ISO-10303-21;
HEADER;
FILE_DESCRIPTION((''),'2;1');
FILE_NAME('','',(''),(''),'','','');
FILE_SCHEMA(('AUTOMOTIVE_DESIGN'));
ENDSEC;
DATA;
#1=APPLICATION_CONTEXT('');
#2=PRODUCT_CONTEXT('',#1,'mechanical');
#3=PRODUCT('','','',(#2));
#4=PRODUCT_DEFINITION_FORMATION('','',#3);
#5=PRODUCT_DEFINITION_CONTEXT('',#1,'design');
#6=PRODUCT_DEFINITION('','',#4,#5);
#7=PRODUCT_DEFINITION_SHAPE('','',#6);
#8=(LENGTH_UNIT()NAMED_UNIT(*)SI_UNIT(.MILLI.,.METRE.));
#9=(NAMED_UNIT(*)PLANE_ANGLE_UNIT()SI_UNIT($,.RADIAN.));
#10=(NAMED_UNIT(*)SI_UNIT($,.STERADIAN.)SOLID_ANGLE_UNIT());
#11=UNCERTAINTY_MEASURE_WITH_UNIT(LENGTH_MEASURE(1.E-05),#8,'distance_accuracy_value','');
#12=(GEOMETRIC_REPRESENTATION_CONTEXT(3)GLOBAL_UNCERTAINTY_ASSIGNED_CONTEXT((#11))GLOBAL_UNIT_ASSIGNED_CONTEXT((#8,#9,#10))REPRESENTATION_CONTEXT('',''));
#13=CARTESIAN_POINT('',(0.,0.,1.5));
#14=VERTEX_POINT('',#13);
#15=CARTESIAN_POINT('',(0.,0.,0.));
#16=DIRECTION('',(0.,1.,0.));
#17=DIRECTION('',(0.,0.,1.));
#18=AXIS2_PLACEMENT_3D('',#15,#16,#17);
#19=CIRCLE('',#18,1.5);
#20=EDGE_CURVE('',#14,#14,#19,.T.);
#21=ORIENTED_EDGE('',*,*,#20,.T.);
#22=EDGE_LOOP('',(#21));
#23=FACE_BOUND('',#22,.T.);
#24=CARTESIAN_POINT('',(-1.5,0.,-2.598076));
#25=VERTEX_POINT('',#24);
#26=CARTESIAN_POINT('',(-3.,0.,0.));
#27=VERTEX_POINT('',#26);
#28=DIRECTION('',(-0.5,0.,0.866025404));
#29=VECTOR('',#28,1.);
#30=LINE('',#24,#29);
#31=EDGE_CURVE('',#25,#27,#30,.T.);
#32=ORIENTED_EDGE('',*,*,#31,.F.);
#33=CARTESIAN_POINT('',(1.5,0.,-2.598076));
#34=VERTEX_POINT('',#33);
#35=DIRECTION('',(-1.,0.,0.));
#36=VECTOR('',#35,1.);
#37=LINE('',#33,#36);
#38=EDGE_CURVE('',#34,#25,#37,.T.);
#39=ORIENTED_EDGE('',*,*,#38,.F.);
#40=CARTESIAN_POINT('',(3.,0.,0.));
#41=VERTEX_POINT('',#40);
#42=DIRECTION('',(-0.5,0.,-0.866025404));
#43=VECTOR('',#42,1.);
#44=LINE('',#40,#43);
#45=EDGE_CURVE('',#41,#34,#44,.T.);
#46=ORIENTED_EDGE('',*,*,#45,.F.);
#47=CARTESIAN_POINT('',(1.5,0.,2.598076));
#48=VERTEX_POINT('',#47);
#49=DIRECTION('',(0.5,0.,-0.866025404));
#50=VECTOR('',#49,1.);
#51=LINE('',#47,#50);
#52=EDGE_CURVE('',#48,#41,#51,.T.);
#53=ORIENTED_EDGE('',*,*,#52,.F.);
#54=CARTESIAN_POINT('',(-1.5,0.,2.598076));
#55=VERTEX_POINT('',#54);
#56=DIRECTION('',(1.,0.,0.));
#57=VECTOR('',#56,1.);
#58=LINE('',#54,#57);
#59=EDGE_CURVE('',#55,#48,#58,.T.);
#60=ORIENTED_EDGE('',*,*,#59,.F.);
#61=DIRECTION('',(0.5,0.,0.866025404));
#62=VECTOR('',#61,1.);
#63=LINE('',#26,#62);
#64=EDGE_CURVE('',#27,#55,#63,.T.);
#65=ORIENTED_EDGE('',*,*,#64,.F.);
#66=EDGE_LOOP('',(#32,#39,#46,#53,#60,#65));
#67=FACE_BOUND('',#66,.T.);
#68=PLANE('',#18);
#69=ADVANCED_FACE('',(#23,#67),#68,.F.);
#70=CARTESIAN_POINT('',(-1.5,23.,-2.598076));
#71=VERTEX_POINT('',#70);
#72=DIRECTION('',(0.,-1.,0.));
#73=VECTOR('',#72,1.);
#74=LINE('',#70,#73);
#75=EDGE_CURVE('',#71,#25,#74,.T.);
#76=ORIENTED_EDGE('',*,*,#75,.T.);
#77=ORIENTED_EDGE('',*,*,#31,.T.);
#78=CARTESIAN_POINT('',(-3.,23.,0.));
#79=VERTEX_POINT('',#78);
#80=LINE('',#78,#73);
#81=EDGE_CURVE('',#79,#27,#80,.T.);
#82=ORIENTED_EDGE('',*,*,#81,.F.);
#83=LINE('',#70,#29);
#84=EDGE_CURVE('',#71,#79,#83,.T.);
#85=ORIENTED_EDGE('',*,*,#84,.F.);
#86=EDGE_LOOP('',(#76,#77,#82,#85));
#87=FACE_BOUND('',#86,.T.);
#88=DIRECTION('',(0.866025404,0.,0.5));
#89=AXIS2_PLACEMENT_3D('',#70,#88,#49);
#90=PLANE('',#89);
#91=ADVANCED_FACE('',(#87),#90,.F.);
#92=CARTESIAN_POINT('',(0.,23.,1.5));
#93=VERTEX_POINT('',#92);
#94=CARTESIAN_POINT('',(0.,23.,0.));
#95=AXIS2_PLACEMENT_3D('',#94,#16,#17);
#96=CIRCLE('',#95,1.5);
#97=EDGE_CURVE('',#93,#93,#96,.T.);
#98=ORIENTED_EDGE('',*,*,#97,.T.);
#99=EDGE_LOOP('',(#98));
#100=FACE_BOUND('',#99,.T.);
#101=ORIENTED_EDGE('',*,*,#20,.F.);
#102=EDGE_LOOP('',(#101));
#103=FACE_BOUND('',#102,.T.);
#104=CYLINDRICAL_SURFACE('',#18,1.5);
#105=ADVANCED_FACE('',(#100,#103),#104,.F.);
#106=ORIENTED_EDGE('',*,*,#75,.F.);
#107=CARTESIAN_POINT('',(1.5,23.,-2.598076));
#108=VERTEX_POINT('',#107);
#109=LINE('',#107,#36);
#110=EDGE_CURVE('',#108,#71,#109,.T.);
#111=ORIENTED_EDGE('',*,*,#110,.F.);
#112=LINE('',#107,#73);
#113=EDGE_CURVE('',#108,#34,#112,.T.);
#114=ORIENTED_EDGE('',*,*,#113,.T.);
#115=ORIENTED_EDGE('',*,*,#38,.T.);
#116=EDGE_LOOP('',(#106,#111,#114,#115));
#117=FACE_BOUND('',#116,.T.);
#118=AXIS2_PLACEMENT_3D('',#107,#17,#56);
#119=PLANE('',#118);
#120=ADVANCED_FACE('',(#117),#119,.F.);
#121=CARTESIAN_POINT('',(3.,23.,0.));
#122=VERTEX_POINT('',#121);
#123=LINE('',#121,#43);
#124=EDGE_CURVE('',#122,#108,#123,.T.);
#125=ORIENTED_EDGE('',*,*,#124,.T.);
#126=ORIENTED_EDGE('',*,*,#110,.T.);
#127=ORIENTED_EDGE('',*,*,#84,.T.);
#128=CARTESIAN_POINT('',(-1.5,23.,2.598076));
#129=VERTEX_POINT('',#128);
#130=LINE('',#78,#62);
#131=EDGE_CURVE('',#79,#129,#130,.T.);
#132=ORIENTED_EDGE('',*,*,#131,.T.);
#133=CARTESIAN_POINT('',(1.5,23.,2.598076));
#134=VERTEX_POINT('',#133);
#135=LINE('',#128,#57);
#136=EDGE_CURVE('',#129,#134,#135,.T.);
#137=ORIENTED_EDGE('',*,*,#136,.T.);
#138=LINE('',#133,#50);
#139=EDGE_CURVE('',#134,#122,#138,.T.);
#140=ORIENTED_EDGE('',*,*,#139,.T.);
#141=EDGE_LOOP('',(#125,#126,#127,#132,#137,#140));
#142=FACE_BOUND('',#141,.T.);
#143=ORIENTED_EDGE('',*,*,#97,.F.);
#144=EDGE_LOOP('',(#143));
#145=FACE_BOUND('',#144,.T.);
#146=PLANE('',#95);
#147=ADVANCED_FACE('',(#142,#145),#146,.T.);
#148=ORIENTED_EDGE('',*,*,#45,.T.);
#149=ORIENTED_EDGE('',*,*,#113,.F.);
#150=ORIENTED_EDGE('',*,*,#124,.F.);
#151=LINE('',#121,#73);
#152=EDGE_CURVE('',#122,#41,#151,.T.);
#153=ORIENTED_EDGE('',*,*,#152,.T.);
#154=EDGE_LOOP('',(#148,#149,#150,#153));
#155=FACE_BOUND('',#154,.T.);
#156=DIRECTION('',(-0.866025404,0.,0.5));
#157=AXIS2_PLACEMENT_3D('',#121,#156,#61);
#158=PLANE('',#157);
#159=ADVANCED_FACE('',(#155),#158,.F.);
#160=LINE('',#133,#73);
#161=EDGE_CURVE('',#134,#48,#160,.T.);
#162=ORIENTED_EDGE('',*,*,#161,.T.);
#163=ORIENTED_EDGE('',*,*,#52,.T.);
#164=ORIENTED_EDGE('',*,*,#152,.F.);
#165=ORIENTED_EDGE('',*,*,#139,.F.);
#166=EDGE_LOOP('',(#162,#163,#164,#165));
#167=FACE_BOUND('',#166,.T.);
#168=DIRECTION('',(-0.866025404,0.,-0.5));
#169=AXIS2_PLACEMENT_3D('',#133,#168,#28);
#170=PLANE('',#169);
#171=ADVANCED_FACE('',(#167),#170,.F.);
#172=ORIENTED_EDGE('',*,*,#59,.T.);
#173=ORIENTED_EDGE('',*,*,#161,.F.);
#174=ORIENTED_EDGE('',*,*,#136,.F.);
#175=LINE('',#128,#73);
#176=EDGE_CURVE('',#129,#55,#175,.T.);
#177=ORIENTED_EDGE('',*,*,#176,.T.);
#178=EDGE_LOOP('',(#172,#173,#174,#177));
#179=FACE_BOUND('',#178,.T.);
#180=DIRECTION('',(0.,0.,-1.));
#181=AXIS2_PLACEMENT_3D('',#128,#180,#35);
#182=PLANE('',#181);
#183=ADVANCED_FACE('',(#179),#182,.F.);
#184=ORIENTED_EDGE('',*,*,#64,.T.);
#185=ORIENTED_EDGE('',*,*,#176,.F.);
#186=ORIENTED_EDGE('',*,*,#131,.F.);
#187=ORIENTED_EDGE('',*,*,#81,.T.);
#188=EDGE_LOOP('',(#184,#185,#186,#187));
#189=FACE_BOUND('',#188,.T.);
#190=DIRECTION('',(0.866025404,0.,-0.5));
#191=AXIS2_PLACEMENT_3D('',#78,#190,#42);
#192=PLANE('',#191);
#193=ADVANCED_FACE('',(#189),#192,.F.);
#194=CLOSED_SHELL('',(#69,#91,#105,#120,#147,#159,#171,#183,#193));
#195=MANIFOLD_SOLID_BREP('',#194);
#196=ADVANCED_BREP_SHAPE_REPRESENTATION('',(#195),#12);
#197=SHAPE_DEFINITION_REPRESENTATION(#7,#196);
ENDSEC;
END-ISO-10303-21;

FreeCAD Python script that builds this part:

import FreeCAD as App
import Part
import Sketcher

V = App.Vector
Q = App.Units.Quantity


def add_polygon(sketch, points):
    """Adds a closed chain of lines whose ends are joined by coincident constraints."""
    first, n = sketch.GeometryCount, len(points)
    for a, b in zip(points, points[1:] + points[:1]):
        sketch.addGeometry(Part.LineSegment(App.Vector(*a, 0), App.Vector(*b, 0)), False)
    for i in range(n):
        sketch.addConstraint(Sketcher.Constraint("Coincident", first + i, 2, first + (i + 1) % n, 1))

doc = App.newDocument("Part")
body = doc.addObject("PartDesign::Body", "Body")

# Sketch on XZ plane
sketch1 = body.newObject("Sketcher::SketchObject", "Sketch")
sketch1.AttachmentSupport = (doc.getObject("XZ_Plane"), [""])
sketch1.MapMode = "FlatFace"
add_polygon(sketch1, [(3, 0), (1.5, -2.6), (-1.5, -2.6), (-3, 0), (-1.5, 2.6), (1.5, 2.6)])  # lines 0-5
sketch1.addConstraint(Sketcher.Constraint("Horizontal", 1))
sketch1.addConstraint(Sketcher.Constraint("Horizontal", 4))
sketch1.addConstraint(Sketcher.Constraint("Symmetric", 0, 2, 3, 2, -1, 1))
sketch1.addConstraint(Sketcher.Constraint("Symmetric", 2, 2, 5, 2, -1, 1))
sketch1.addConstraint(Sketcher.Constraint("PointOnObject", 2, 2, -1))
sketch1.addConstraint(Sketcher.Constraint("Parallel", 2, 5))
sketch1.addConstraint(Sketcher.Constraint("Vertical", 1, 2, 3, 2))
sketch1.addConstraint(Sketcher.Constraint("DistanceX", 1, 2, 1, 1, 3.0))
sketch1.addConstraint(Sketcher.Constraint("Angle", 0, Q("-120 deg")))
sketch1.addConstraint(Sketcher.Constraint("Distance", 0, 3.0))
pad1 = body.newObject("PartDesign::Pad", "Pad")
pad1.Profile = sketch1
pad1.Length = 23
pad1.Reversed = True

# Sketch on XZ plane
sketch2 = body.newObject("Sketcher::SketchObject", "Sketch001")
sketch2.AttachmentSupport = (doc.getObject("XZ_Plane"), [""])
sketch2.MapMode = "FlatFace"
sketch2.AttachmentOffset = App.Placement(V(0, 0, -23), App.Rotation())
sketch2.addGeometry(Part.Circle(V(0, 0, 0), V(0, 0, 1), 1.5), False)
sketch2.addConstraint(Sketcher.Constraint("Coincident", 0, 3, -1, 1))
sketch2.addConstraint(Sketcher.Constraint("Diameter", 0, 3.0))
pocket1 = body.newObject("PartDesign::Pocket", "Pocket")
pocket1.Profile = sketch2
pocket1.Type = "ThroughAll"
pocket1.Reversed = True

doc.recompute()
